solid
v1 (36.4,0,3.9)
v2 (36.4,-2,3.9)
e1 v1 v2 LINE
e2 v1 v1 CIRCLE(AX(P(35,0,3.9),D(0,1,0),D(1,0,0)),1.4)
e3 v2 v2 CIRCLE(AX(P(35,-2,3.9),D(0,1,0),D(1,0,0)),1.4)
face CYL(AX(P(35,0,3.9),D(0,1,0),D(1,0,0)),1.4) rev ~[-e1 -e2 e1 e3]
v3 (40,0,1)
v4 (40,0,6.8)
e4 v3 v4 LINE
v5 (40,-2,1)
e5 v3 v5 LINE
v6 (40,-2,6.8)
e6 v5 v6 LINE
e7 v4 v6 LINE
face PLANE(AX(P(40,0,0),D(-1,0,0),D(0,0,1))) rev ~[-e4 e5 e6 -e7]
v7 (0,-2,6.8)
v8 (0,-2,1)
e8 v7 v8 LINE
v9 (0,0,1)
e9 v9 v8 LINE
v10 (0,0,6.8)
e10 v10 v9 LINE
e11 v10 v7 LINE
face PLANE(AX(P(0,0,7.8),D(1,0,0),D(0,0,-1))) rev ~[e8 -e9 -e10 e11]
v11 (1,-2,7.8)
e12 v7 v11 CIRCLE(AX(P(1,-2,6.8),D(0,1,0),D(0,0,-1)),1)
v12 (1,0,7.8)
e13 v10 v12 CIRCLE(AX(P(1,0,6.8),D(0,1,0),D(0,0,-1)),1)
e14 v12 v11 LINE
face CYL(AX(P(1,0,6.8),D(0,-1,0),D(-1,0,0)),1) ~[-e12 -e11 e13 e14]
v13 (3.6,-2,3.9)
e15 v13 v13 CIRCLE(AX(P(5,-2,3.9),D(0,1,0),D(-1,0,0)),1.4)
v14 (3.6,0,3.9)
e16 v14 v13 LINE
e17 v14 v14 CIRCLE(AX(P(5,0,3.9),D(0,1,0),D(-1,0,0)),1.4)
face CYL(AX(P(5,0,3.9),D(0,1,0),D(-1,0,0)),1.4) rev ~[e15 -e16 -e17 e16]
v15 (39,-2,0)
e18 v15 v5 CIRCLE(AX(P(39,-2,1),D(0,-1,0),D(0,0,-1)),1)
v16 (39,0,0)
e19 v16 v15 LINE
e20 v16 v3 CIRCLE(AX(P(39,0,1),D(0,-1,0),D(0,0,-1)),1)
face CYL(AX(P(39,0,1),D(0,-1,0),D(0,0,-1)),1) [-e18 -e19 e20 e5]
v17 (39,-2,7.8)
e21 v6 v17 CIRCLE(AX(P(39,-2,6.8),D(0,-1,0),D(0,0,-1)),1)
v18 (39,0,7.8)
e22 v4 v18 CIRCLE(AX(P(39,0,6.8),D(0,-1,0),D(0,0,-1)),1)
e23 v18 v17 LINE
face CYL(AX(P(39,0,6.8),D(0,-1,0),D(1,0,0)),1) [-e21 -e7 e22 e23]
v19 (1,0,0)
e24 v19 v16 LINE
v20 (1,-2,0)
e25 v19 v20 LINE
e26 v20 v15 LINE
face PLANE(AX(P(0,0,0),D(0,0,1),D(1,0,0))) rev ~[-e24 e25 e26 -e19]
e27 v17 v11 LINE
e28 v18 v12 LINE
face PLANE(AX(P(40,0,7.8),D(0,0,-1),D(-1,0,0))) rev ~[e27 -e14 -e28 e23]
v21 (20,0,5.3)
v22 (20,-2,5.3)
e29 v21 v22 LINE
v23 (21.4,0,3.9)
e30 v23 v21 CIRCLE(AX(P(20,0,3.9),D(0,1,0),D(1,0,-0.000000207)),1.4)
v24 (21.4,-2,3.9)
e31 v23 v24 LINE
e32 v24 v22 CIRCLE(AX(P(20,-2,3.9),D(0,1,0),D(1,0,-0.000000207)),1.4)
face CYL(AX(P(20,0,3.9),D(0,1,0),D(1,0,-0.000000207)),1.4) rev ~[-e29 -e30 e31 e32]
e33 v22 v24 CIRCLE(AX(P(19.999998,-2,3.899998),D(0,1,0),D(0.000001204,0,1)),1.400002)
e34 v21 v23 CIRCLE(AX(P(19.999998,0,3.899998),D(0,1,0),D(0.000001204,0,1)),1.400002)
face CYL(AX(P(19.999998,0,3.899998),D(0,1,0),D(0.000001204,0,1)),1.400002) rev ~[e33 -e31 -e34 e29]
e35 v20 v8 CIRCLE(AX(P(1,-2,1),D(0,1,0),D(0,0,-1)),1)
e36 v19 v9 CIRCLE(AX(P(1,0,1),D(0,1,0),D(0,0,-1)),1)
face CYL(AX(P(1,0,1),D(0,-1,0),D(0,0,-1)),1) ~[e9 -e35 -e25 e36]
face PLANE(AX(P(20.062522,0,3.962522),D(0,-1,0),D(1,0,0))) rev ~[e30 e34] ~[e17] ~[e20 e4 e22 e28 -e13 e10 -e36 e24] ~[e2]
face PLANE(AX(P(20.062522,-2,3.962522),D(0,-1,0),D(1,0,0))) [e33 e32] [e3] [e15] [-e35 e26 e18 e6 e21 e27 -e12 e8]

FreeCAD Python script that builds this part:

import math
import FreeCAD as App
import Part
import Sketcher
Q = App.Units.Quantity


def edges_at(feature, points):
    """Names of the edges that pass closest to the given points."""
    edges = feature.Shape.Edges
    near = lambda p: min(range(len(edges)), key=lambda i: edges[i].distToShape(Part.Vertex(*p))[0])
    return sorted({f"Edge{near(p) + 1}" for p in points})

doc = App.newDocument("Part")
body = doc.addObject("PartDesign::Body", "Body")

sketch1 = doc.addObject("Sketcher::SketchObject", "Sketch")
body.addObject(sketch1)
sketch1.AttachmentSupport = (doc.XZ_Plane, [""])
sketch1.MapMode = "FlatFace"
sketch1.addGeometry([
    Part.LineSegment(App.Vector(0, 0, 0), App.Vector(40, 0, 0)),
    Part.LineSegment(App.Vector(40, 0, 0), App.Vector(40, 7.8, 0)),
    Part.LineSegment(App.Vector(40, 7.8, 0), App.Vector(0, 7.8, 0)),
    Part.LineSegment(App.Vector(0, 7.8, 0), App.Vector(0, 0, 0)),
    Part.Circle(App.Vector(5, 3.9, 0), App.Vector(0, 0, 1), 1.4),
    Part.ArcOfCircle(Part.Circle(App.Vector(20, 3.9, 0), App.Vector(0, 0, 1), 1.4), math.radians(0), math.radians(90)),
    Part.ArcOfCircle(Part.Circle(App.Vector(20, 3.9, 0), App.Vector(0, 0, 1), 1.4), math.radians(90), math.radians(360)),
    Part.Circle(App.Vector(35, 3.9, 0), App.Vector(0, 0, 1), 1.4),
], False)
sketch1.addConstraint([
    Sketcher.Constraint("Coincident", 0, 2, 1, 1),
    Sketcher.Constraint("Coincident", 1, 2, 2, 1),
    Sketcher.Constraint("Coincident", 2, 2, 3, 1),
    Sketcher.Constraint("Coincident", 3, 2, 0, 1),
    Sketcher.Constraint("Tangent", 5, 1, 6, 2),
    Sketcher.Constraint("Coincident", 6, 1, 5, 2),
    Sketcher.Constraint("Horizontal", 0),
    Sketcher.Constraint("Vertical", 1),
    Sketcher.Constraint("Horizontal", 2),
    Sketcher.Constraint("Vertical", 3),
    Sketcher.Constraint("Coincident", 3, 2, -1, 1),
    Sketcher.Constraint("Equal", 4, 5),
    Sketcher.Constraint("Equal", 6, 7),
    Sketcher.Constraint("Horizontal", 4, 3, 5, 3),
    Sketcher.Constraint("Horizontal", 6, 3, 7, 3),
    Sketcher.Constraint("Horizontal", 7, 3, 5, 1),
    Sketcher.Constraint("Vertical", 5, 3, 6, 1),
    Sketcher.Constraint("Diameter", 4, Q("2.8 mm")),
    Sketcher.Constraint("DistanceX", 0, 1, 0, 2, Q("40 mm")),
    Sketcher.Constraint("DistanceY", 1, 1, 1, 2, Q("7.8 mm")),
    Sketcher.Constraint("DistanceX", -1, 1, 4, 3, Q("5 mm")),
    Sketcher.Constraint("DistanceX", -1, 1, 5, 3, Q("19.999998 mm")),
    Sketcher.Constraint("DistanceX", -1, 1, 7, 3, Q("35 mm")),
    Sketcher.Constraint("DistanceY", -1, 1, 4, 3, Q("3.9 mm")),
])
pad1 = doc.addObject("PartDesign::Pad", "Pad")
body.addObject(pad1)
pad1.Profile = sketch1
pad1.Length = 2
doc.recompute()

fillet = doc.addObject("PartDesign::Fillet", "Fillet")
body.addObject(fillet)
fillet.Base = (pad1, edges_at(pad1, [
    (0, -1, 7.8),
    (0, -1, 0),
    (40, -1, 7.8),
    (40, -1, 0),
]))
fillet.Radius = 1

doc.recompute()
